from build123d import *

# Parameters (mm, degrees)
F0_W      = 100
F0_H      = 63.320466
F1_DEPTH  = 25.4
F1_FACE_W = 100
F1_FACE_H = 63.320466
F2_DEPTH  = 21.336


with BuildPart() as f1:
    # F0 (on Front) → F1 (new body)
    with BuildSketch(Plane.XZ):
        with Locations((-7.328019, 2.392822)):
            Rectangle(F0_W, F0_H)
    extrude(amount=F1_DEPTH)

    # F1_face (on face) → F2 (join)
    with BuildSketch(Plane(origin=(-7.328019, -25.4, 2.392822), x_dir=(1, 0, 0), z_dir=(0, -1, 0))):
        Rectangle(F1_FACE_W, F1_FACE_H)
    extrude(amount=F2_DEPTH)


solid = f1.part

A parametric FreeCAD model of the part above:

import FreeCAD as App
import Part
import Sketcher
from FreeCAD import Vector
Q = App.Units.Quantity


def add_polygon(sketch, points):
    """Adds a closed chain of lines whose ends are joined by coincident constraints."""
    first, n = sketch.GeometryCount, len(points)
    for a, b in zip(points, points[1:] + points[:1]):
        sketch.addGeometry(Part.LineSegment(App.Vector(*a, 0), App.Vector(*b, 0)), False)
    for i in range(n):
        sketch.addConstraint(Sketcher.Constraint("Coincident", first + i, 2, first + (i + 1) % n, 1))

doc = App.newDocument("Part")
body = doc.addObject("PartDesign::Body", "Body")

# Sketch on XZ plane
sketch1 = body.newObject("Sketcher::SketchObject", "Sketch")
sketch1.AttachmentSupport = (doc.getObject("XZ_Plane"), [""])
sketch1.MapMode = "FlatFace"
add_polygon(sketch1, [(-57, 34), (-57, -29), (43, -29), (43, 34)])  # lines 0-3
sketch1.addConstraint(Sketcher.Constraint("Vertical", 0))
sketch1.addConstraint(Sketcher.Constraint("Horizontal", 1))
sketch1.addConstraint(Sketcher.Constraint("Vertical", 2))
sketch1.addConstraint(Sketcher.Constraint("Horizontal", 3))
sketch1.addConstraint(Sketcher.Constraint("DistanceX", 1, 1, 1, 2, Q("100 mm")))
sketch1.addConstraint(Sketcher.Constraint("DistanceY", 0, 2, 0, 1, Q("63.320466 mm")))
sketch1.addConstraint(Sketcher.Constraint("DistanceX", 0, 2, -1, 1, Q("57.328019 mm")))
sketch1.addConstraint(Sketcher.Constraint("DistanceY", 0, 2, -1, 1, Q("29.267411 mm")))
pad1 = body.newObject("PartDesign::Pad", "Pad")
pad1.Profile = sketch1
pad1.Length = Q("1 in")

# Sketch on XZ plane
sketch2 = body.newObject("Sketcher::SketchObject", "Sketch001")
sketch2.AttachmentSupport = (doc.getObject("XZ_Plane"), [""])
sketch2.MapMode = "FlatFace"
sketch2.AttachmentOffset = App.Placement(Vector(0, 0, 1 * 25.4), App.Rotation())
add_polygon(sketch2, [(-57, 34), (-57, -29), (43, -29), (43, 34)])  # lines 0-3
sketch2.addConstraint(Sketcher.Constraint("Vertical", 0))
sketch2.addConstraint(Sketcher.Constraint("Horizontal", 1))
sketch2.addConstraint(Sketcher.Constraint("Vertical", 2))
sketch2.addConstraint(Sketcher.Constraint("Horizontal", 3))
sketch2.addConstraint(Sketcher.Constraint("DistanceX", 1, 1, 1, 2, Q("100 mm")))
sketch2.addConstraint(Sketcher.Constraint("DistanceY", 0, 2, 0, 1, Q("63.320466 mm")))
sketch2.addConstraint(Sketcher.Constraint("DistanceX", 0, 2, -1, 1, Q("57.328019 mm")))
sketch2.addConstraint(Sketcher.Constraint("DistanceY", 0, 2, -1, 1, Q("29.267411 mm")))
pad2 = body.newObject("PartDesign::Pad", "Pad001")
pad2.Profile = sketch2
pad2.Length = Q("0.84 in")

doc.recompute()
